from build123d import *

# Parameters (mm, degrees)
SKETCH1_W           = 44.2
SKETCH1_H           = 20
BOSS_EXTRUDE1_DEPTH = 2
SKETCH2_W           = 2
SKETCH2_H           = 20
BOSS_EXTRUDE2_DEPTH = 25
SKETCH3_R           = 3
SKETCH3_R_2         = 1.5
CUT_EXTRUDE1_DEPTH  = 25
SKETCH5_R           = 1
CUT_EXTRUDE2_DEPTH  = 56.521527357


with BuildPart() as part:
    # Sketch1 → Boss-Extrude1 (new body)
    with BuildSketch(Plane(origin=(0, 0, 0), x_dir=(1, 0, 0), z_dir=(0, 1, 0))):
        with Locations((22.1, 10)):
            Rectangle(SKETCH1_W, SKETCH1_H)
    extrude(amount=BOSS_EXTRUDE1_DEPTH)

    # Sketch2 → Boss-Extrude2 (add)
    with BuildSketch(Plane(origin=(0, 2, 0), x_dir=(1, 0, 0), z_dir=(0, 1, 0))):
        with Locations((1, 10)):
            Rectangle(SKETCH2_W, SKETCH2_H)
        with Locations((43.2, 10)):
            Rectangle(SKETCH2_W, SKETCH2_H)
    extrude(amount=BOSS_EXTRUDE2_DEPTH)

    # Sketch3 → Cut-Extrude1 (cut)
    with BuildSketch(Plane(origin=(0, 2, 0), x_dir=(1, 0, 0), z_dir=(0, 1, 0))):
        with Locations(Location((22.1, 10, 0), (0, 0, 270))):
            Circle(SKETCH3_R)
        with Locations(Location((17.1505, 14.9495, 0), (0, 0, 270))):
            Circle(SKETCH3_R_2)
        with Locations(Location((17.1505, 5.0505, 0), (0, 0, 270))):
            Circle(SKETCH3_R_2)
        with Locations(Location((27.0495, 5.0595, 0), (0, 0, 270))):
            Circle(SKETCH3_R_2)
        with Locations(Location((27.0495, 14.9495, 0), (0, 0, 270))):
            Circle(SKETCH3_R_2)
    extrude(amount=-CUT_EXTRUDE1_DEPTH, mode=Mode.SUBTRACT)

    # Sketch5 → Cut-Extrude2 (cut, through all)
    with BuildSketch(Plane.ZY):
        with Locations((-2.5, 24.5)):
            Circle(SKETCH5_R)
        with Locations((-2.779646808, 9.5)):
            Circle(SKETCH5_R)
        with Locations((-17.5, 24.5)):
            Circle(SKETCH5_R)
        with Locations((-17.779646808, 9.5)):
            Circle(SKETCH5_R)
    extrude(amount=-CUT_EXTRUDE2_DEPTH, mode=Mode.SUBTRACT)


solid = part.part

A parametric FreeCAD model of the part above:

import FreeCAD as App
import Part
import Sketcher
from FreeCAD import Vector
Q = App.Units.Quantity

doc = App.newDocument("Part")
params = doc.addObject("Spreadsheet::Sheet", "Params")
for row, (alias, value) in enumerate([
    ("sketch1_height", "20 mm"),
    ("sketch1_width", "44.2 mm"),
    ("pad1_length", "2 mm"),
    ("sketch2_width", "2 mm"),
    ("sketch2_height", "20 mm"),
    ("pad2_length", "25 mm"),
    ("sketch3_diameter", "6 mm"),
    ("sketch3_diameter2", "3 mm"),
    ("pocket1_length", "25 mm"),
    ("sketch4_diameter", "2 mm"),
], start=1):
    params.set(f"A{row}", alias)
    params.set(f"B{row}", "=" + value)
    params.setAlias(f"B{row}", alias)

body = doc.addObject("PartDesign::Body", "Body")

# Sketch on XZ plane
sketch1 = body.newObject("Sketcher::SketchObject", "Sketch")
sketch1.AttachmentSupport = (doc.getObject("XZ_Plane"), [""])
sketch1.MapMode = "FlatFace"
sketch1.addGeometry([
    Part.LineSegment(Vector(0, -20, 0), Vector(0, 0, 0)),
    Part.LineSegment(Vector(0, 0, 0), Vector(44, 0, 0)),
    Part.LineSegment(Vector(44, 0, 0), Vector(44, -20, 0)),
    Part.LineSegment(Vector(44, -20, 0), Vector(0, -20, 0)),
], False)
sketch1.addConstraint([
    Sketcher.Constraint("Coincident", 0, 2, 1, 1),
    Sketcher.Constraint("Coincident", 1, 2, 2, 1),
    Sketcher.Constraint("Coincident", 2, 2, 3, 1),
    Sketcher.Constraint("Coincident", 3, 2, 0, 1),
    Sketcher.Constraint("Vertical", 0),
    Sketcher.Constraint("Horizontal", 1),
    Sketcher.Constraint("Vertical", 2),
    Sketcher.Constraint("Horizontal", 3),
    Sketcher.Constraint("Coincident", 0, 2, -1, 1),
    Sketcher.Constraint("DistanceY", 0, 1, 0, 2, Q("20 mm")),
    Sketcher.Constraint("DistanceX", 1, 1, 1, 2, Q("44.2 mm")),
])
sketch1.setExpression("Constraints[9]", "Params.sketch1_height")
sketch1.setExpression("Constraints[10]", "Params.sketch1_width")
pad1 = body.newObject("PartDesign::Pad", "Pad")
pad1.Profile = sketch1
pad1.setExpression("Length", "Params.pad1_length")
pad1.Reversed = True

# Sketch on XZ plane
sketch2 = body.newObject("Sketcher::SketchObject", "Sketch001")
sketch2.AttachmentSupport = (doc.getObject("XZ_Plane"), [""])
sketch2.MapMode = "FlatFace"
sketch2.AttachmentOffset = App.Placement(Vector(0, 0, -2), App.Rotation())
sketch2.addGeometry([
    Part.LineSegment(Vector(0, -20, 0), Vector(0, 0, 0)),  # 0
    Part.LineSegment(Vector(0, 0, 0), Vector(2, 0, 0)),  # 1
    Part.LineSegment(Vector(2, 0, 0), Vector(2, -20, 0)),  # 2
    Part.LineSegment(Vector(2, -20, 0), Vector(0, -20, 0)),  # 3
    Part.LineSegment(Vector(42.2, -20, 0), Vector(42.2, 0, 0)),  # 4
    Part.LineSegment(Vector(42.2, 0, 0), Vector(44.2, 0, 0)),  # 5
    Part.LineSegment(Vector(44.2, 0, 0), Vector(44.2, -20, 0)),  # 6
    Part.LineSegment(Vector(44.2, -20, 0), Vector(42.2, -20, 0)),  # 7
], False)
sketch2.addConstraint([
    Sketcher.Constraint("Coincident", 0, 2, 1, 1),
    Sketcher.Constraint("Coincident", 1, 2, 2, 1),
    Sketcher.Constraint("Coincident", 2, 2, 3, 1),
    Sketcher.Constraint("Coincident", 3, 2, 0, 1),
    Sketcher.Constraint("Coincident", 4, 2, 5, 1),
    Sketcher.Constraint("Coincident", 5, 2, 6, 1),
    Sketcher.Constraint("Coincident", 6, 2, 7, 1),
    Sketcher.Constraint("Coincident", 7, 2, 4, 1),
    Sketcher.Constraint("Vertical", 0),
    Sketcher.Constraint("Horizontal", 1),
    Sketcher.Constraint("Vertical", 2),
    Sketcher.Constraint("Horizontal", 3),
    Sketcher.Constraint("Vertical", 4),
    Sketcher.Constraint("Horizontal", 5),
    Sketcher.Constraint("Vertical", 6),
    Sketcher.Constraint("Horizontal", 7),
    Sketcher.Constraint("Coincident", 0, 2, -1, 1),
    Sketcher.Constraint("PointOnObject", 4, 2, -1),
    Sketcher.Constraint("Horizontal", 3, 2, 6, 2),
    Sketcher.Constraint("Equal", 3, 5),
    Sketcher.Constraint("DistanceX", 1, 1, 1, 2, Q("2 mm")),
    Sketcher.Constraint("DistanceY", 0, 1, 0, 2, Q("20 mm")),
    Sketcher.Constraint("DistanceX", -1, 1, 4, 2, Q("42.2 mm")),
])
sketch2.setExpression("Constraints[20]", "Params.sketch2_width")
sketch2.setExpression("Constraints[21]", "Params.sketch2_height")
pad2 = body.newObject("PartDesign::Pad", "Pad001")
pad2.Profile = sketch2
pad2.setExpression("Length", "Params.pad2_length")
pad2.Reversed = True

# Sketch on XZ plane
sketch3 = body.newObject("Sketcher::SketchObject", "Sketch002")
sketch3.AttachmentSupport = (doc.getObject("XZ_Plane"), [""])
sketch3.MapMode = "FlatFace"
sketch3.AttachmentOffset = App.Placement(Vector(0, 0, -2), App.Rotation())
sketch3.addGeometry([
    Part.Circle(Vector(22.1, -10, 0), Vector(0, 0, 1), 3),  # 0
    Part.Circle(Vector(17.2, -14.9, 0), Vector(0, 0, 1), 1.5),  # 1
    Part.Circle(Vector(17.2, -5.1, 0), Vector(0, 0, 1), 1.5),  # 2
    Part.Circle(Vector(27, -5.1, 0), Vector(0, 0, 1), 1.5),  # 3
    Part.Circle(Vector(27, -14.9, 0), Vector(0, 0, 1), 1.5),  # 4
], False)
sketch3.addConstraint([
    Sketcher.Constraint("Equal", 1, 2),
    Sketcher.Constraint("Equal", 2, 3),
    Sketcher.Constraint("Equal", 3, 4),
    Sketcher.Constraint("Horizontal", 1, 3, 4, 3),
    Sketcher.Constraint("Vertical", 1, 3, 2, 3),
    Sketcher.Constraint("Vertical", 3, 3, 4, 3),
    Sketcher.Constraint("Diameter", 0, Q("6 mm")),
    Sketcher.Constraint("Diameter", 1, Q("3 mm")),
    Sketcher.Constraint("DistanceY", 0, 3, -1, 1, Q("10 mm")),
    Sketcher.Constraint("DistanceX", -1, 1, 0, 3, Q("22.1 mm")),
    Sketcher.Constraint("DistanceY", 1, 3, 3, 3, Q("9.89 mm")),
    Sketcher.Constraint("DistanceY", 1, 3, 2, 3, Q("9.899 mm")),
    Sketcher.Constraint("DistanceX", 2, 3, 3, 3, Q("9.899 mm")),
    Sketcher.Constraint("DistanceX", -1, 1, 1, 3, Q("17.1505 mm")),
    Sketcher.Constraint("DistanceY", 1, 3, -1, 1, Q("14.9495 mm")),
])
sketch3.setExpression("Constraints[6]", "Params.sketch3_diameter")
sketch3.setExpression("Constraints[7]", "Params.sketch3_diameter2")
pocket1 = body.newObject("PartDesign::Pocket", "Pocket")
pocket1.Profile = sketch3
pocket1.setExpression("Length", "Params.pocket1_length")
pocket1.Reversed = True

# Sketch on YZ plane
sketch4 = body.newObject("Sketcher::SketchObject", "Sketch003")
sketch4.AttachmentSupport = (doc.getObject("YZ_Plane"), [""])
sketch4.MapMode = "FlatFace"
sketch4.addGeometry([
    Part.Circle(Vector(24.5, -2.5, 0), Vector(0, 0, 1), 1),
    Part.Circle(Vector(9.5, -2.8, 0), Vector(0, 0, 1), 1),
    Part.Circle(Vector(24.5, -17.5, 0), Vector(0, 0, 1), 1),
    Part.Circle(Vector(9.5, -17.8, 0), Vector(0, 0, 1), 1),
], False)
sketch4.addConstraint([
    Sketcher.Constraint("Equal", 0, 1),
    Sketcher.Constraint("Equal", 1, 2),
    Sketcher.Constraint("Equal", 2, 3),
    Sketcher.Constraint("Vertical", 0, 3, 2, 3),
    Sketcher.Constraint("Vertical", 1, 3, 3, 3),
    Sketcher.Constraint("Diameter", 0, Q("2 mm")),
    Sketcher.Constraint("DistanceX", 1, 3, 0, 3, Q("15 mm")),
    Sketcher.Constraint("DistanceY", 2, 3, 0, 3, Q("15 mm")),
    Sketcher.Constraint("DistanceY", 3, 3, 1, 3, Q("15 mm")),
    Sketcher.Constraint("DistanceX", -1, 1, 0, 3, Q("24.5 mm")),
    Sketcher.Constraint("DistanceY", 0, 3, -1, 1, Q("2.5 mm")),
    Sketcher.Constraint("DistanceY", 1, 3, -1, 1, Q("2.779647 mm")),
])
sketch4.setExpression("Constraints[5]", "Params.sketch4_diameter")
pocket2 = body.newObject("PartDesign::Pocket", "Pocket001")
pocket2.Profile = sketch4
pocket2.Type = "ThroughAll"
pocket2.Reversed = True

doc.recompute()
